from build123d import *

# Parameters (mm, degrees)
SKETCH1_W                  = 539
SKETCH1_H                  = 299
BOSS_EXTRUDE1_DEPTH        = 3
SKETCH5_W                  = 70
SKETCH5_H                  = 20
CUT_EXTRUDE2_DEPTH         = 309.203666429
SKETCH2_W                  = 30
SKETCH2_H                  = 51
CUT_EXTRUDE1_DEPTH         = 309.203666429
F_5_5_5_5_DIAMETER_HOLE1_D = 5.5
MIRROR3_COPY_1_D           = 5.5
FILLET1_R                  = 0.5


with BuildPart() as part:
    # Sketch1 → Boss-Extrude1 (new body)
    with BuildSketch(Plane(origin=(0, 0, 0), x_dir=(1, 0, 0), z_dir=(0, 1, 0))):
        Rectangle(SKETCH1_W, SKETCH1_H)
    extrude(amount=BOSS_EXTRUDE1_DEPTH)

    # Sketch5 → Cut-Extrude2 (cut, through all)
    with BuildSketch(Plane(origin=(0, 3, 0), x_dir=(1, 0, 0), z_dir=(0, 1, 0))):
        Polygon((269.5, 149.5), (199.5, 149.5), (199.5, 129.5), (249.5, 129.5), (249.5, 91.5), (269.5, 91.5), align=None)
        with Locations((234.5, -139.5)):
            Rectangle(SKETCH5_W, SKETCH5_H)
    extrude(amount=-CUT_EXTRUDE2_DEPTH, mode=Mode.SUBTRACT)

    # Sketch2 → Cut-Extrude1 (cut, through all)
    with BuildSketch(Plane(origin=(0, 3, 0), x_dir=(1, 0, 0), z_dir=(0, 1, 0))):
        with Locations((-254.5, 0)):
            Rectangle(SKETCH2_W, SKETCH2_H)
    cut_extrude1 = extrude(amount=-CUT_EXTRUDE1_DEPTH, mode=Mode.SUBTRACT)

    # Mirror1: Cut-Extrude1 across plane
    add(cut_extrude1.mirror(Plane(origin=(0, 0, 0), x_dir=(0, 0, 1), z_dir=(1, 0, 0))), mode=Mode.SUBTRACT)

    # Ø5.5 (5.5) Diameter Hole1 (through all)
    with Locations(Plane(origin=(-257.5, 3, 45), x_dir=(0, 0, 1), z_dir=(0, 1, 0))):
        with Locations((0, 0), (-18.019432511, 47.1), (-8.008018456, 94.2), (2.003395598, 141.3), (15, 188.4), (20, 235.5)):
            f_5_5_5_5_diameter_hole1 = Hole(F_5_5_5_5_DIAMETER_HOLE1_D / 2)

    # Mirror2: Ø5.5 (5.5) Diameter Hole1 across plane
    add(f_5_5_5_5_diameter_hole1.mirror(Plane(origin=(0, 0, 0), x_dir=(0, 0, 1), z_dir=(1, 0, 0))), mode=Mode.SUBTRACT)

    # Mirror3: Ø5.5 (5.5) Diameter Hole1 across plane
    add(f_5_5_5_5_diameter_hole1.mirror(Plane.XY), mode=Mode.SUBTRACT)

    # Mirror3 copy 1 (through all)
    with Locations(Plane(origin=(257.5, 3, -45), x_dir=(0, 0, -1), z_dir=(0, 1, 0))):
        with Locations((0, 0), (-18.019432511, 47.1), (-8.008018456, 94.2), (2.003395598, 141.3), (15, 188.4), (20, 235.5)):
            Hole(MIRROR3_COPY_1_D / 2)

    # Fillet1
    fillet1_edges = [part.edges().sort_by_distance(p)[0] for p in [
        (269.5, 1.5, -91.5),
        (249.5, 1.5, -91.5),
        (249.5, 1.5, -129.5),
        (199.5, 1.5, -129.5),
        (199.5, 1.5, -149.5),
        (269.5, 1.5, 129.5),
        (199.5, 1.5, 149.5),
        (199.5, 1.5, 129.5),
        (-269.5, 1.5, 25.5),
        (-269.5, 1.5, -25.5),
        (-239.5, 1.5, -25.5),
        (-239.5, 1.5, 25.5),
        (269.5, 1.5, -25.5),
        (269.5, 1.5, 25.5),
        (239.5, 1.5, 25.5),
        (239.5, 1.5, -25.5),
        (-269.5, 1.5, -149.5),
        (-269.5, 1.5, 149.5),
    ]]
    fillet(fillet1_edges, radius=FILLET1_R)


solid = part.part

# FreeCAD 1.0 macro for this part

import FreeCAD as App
import Part
import Sketcher

V = App.Vector
Q = App.Units.Quantity


def edges_at(feature, points):
    """Names of the edges that pass closest to the given points."""
    edges = feature.Shape.Edges
    near = lambda p: min(range(len(edges)), key=lambda i: edges[i].distToShape(Part.Vertex(*p))[0])
    return sorted({f"Edge{near(p) + 1}" for p in points})

doc = App.newDocument("Part")
params = doc.addObject("Spreadsheet::Sheet", "Params")
for row, (alias, value) in enumerate([
    ("sketch1_width", "539 mm"),
    ("sketch1_height", "299 mm"),
    ("pad1_length", "3 mm"),
    ("sketch2_width", "70 mm"),
    ("sketch2_width2", "50 mm"),
    ("sketch2_height", "38 mm"),
    ("sketch3_width", "30 mm"),
    ("sketch3_height", "51 mm"),
    ("sketch4_diameter", "5.5 mm"),
    ("hole_diameter", "5.5 mm"),
    ("sketch5_diameter", "5.5 mm"),
    ("hole2_diameter", "5.5 mm"),
    ("fillet_radius", "0.5 mm"),
], start=1):
    params.set(f"A{row}", alias)
    params.set(f"B{row}", "=" + value)
    params.setAlias(f"B{row}", alias)

body = doc.addObject("PartDesign::Body", "Body")

# Sketch on XZ plane
sketch1 = body.newObject("Sketcher::SketchObject", "Sketch")
sketch1.AttachmentSupport = (doc.getObject("XZ_Plane"), [""])
sketch1.MapMode = "FlatFace"
sketch1.addGeometry([
    Part.LineSegment(V(-270, -150, 0), V(-270, 150, 0)),
    Part.LineSegment(V(-270, 150, 0), V(270, 150, 0)),
    Part.LineSegment(V(270, 150, 0), V(270, -150, 0)),
    Part.LineSegment(V(270, -150, 0), V(-270, -150, 0)),
], False)
sketch1.addConstraint([
    Sketcher.Constraint("Coincident", 0, 2, 1, 1),
    Sketcher.Constraint("Coincident", 1, 2, 2, 1),
    Sketcher.Constraint("Coincident", 2, 2, 3, 1),
    Sketcher.Constraint("Coincident", 3, 2, 0, 1),
    Sketcher.Constraint("Vertical", 0),
    Sketcher.Constraint("Horizontal", 1),
    Sketcher.Constraint("Vertical", 2),
    Sketcher.Constraint("Horizontal", 3),
    Sketcher.Constraint("Symmetric", 0, 2, 2, 2, -1, 1),
    Sketcher.Constraint("DistanceX", 1, 1, 1, 2, Q("539 mm")),
    Sketcher.Constraint("DistanceY", 0, 1, 0, 2, Q("299 mm")),
])
sketch1.setExpression("Constraints[9]", "Params.sketch1_width")
sketch1.setExpression("Constraints[10]", "Params.sketch1_height")
pad1 = body.newObject("PartDesign::Pad", "Pad")
pad1.Profile = sketch1
pad1.setExpression("Length", "Params.pad1_length")
pad1.Reversed = True

# Sketch on XZ plane
sketch2 = body.newObject("Sketcher::SketchObject", "Sketch001")
sketch2.AttachmentSupport = (doc.getObject("XZ_Plane"), [""])
sketch2.MapMode = "FlatFace"
sketch2.AttachmentOffset = App.Placement(V(0, 0, -3), App.Rotation())
sketch2.addGeometry([
    Part.LineSegment(V(270, -150, 0), V(200, -150, 0)),  # 0
    Part.LineSegment(V(200, -150, 0), V(200, -130, 0)),  # 1
    Part.LineSegment(V(200, -130, 0), V(250, -130, 0)),  # 2
    Part.LineSegment(V(250, -130, 0), V(250, -92, 0)),  # 3
    Part.LineSegment(V(250, -92, 0), V(270, -92, 0)),  # 4
    Part.LineSegment(V(270, -92, 0), V(270, -150, 0)),  # 5
    Part.LineSegment(V(200, 130, 0), V(200, 150, 0)),  # 6
    Part.LineSegment(V(200, 150, 0), V(270, 150, 0)),  # 7
    Part.LineSegment(V(270, 150, 0), V(270, 130, 0)),  # 8
    Part.LineSegment(V(270, 130, 0), V(200, 130, 0)),  # 9
], False)
sketch2.addConstraint([
    Sketcher.Constraint("Coincident", 0, 2, 1, 1),
    Sketcher.Constraint("Coincident", 1, 2, 2, 1),
    Sketcher.Constraint("Coincident", 2, 2, 3, 1),
    Sketcher.Constraint("Coincident", 3, 2, 4, 1),
    Sketcher.Constraint("Coincident", 4, 2, 5, 1),
    Sketcher.Constraint("Coincident", 5, 2, 0, 1),
    Sketcher.Constraint("Coincident", 6, 2, 7, 1),
    Sketcher.Constraint("Coincident", 7, 2, 8, 1),
    Sketcher.Constraint("Coincident", 8, 2, 9, 1),
    Sketcher.Constraint("Coincident", 9, 2, 6, 1),
    Sketcher.Constraint("Horizontal", 0),
    Sketcher.Constraint("Vertical", 1),
    Sketcher.Constraint("Horizontal", 2),
    Sketcher.Constraint("Vertical", 3),
    Sketcher.Constraint("Horizontal", 4),
    Sketcher.Constraint("Vertical", 5),
    Sketcher.Constraint("Vertical", 6),
    Sketcher.Constraint("Horizontal", 7),
    Sketcher.Constraint("Vertical", 8),
    Sketcher.Constraint("Horizontal", 9),
    Sketcher.Constraint("Symmetric", 0, 2, 6, 2, -1),
    Sketcher.Constraint("Vertical", 5, 2, 7, 2),
    Sketcher.Constraint("Equal", 4, 1),
    Sketcher.Constraint("Equal", 1, 6),
    Sketcher.Constraint("DistanceX", 0, 2, 0, 1, Q("70 mm")),
    Sketcher.Constraint("DistanceX", 2, 1, 2, 2, Q("50 mm")),
    Sketcher.Constraint("DistanceY", 3, 1, 3, 2, Q("38 mm")),
    Sketcher.Constraint("DistanceY", 3, 2, 6, 2, Q("241 mm")),
    Sketcher.Constraint("DistanceX", -1, 1, 0, 2, Q("199.5 mm")),
])
sketch2.setExpression("Constraints[24]", "Params.sketch2_width")
sketch2.setExpression("Constraints[25]", "Params.sketch2_width2")
sketch2.setExpression("Constraints[26]", "Params.sketch2_height")
pocket1 = body.newObject("PartDesign::Pocket", "Pocket")
pocket1.Profile = sketch2
pocket1.Type = "ThroughAll"
pocket1.Reversed = True

# Sketch on XZ plane
sketch3 = body.newObject("Sketcher::SketchObject", "Sketch002")
sketch3.AttachmentSupport = (doc.getObject("XZ_Plane"), [""])
sketch3.MapMode = "FlatFace"
sketch3.AttachmentOffset = App.Placement(V(0, 0, -3), App.Rotation())
sketch3.addGeometry([
    Part.LineSegment(V(-270, -26, 0), V(-270, 26, 0)),
    Part.LineSegment(V(-270, 26, 0), V(-240, 26, 0)),
    Part.LineSegment(V(-240, 26, 0), V(-240, -26, 0)),
    Part.LineSegment(V(-240, -26, 0), V(-270, -26, 0)),
], False)
sketch3.addConstraint([
    Sketcher.Constraint("Coincident", 0, 2, 1, 1),
    Sketcher.Constraint("Coincident", 1, 2, 2, 1),
    Sketcher.Constraint("Coincident", 2, 2, 3, 1),
    Sketcher.Constraint("Coincident", 3, 2, 0, 1),
    Sketcher.Constraint("Vertical", 0),
    Sketcher.Constraint("Horizontal", 1),
    Sketcher.Constraint("Vertical", 2),
    Sketcher.Constraint("Horizontal", 3),
    Sketcher.Constraint("DistanceX", 1, 1, 1, 2, Q("30 mm")),
    Sketcher.Constraint("DistanceY", 0, 1, 0, 2, Q("51 mm")),
    Sketcher.Constraint("DistanceX", 0, 2, -1, 1, Q("269.5 mm")),
    Sketcher.Constraint("DistanceY", -1, 1, 0, 2, Q("25.5 mm")),
])
sketch3.setExpression("Constraints[8]", "Params.sketch3_width")
sketch3.setExpression("Constraints[9]", "Params.sketch3_height")
pocket2 = body.newObject("PartDesign::Pocket", "Pocket001")
pocket2.Profile = sketch3
pocket2.Type = "ThroughAll"
pocket2.Reversed = True
doc.recompute()

mirrored = body.newObject("PartDesign::Mirrored", "Mirrored")
mirrored.Originals = [pocket2]
mirrored.MirrorPlane = (doc.getObject("YZ_Plane"), [""])
body.Tip = mirrored

# Sketch on XZ plane
sketch4 = body.newObject("Sketcher::SketchObject", "Sketch003")
sketch4.AttachmentSupport = (doc.getObject("XZ_Plane"), [""])
sketch4.MapMode = "FlatFace"
sketch4.AttachmentOffset = App.Placement(V(0, 0, -3), App.Rotation())
sketch4.addGeometry([
    Part.Circle(V(-257.5, 45, 0), V(0, 0, 1), 2.8),  # 0
    Part.Circle(V(-210.4, 27, 0), V(0, 0, 1), 2.8),  # 1
    Part.Circle(V(-163.3, 37, 0), V(0, 0, 1), 2.8),  # 2
    Part.Circle(V(-116.2, 47, 0), V(0, 0, 1), 2.8),  # 3
    Part.Circle(V(-69.1, 60, 0), V(0, 0, 1), 2.8),  # 4
    Part.Circle(V(-22, 65, 0), V(0, 0, 1), 2.8),  # 5
], False)
sketch4.addConstraint([
    Sketcher.Constraint("Equal", 0, 1),
    Sketcher.Constraint("Equal", 1, 2),
    Sketcher.Constraint("Equal", 2, 3),
    Sketcher.Constraint("Equal", 3, 4),
    Sketcher.Constraint("Equal", 4, 5),
    Sketcher.Constraint("Diameter", 0, Q("5.5 mm")),
    Sketcher.Constraint("DistanceY", -1, 1, 0, 3, Q("45 mm")),
    Sketcher.Constraint("DistanceY", -1, 1, 4, 3, Q("60 mm")),
    Sketcher.Constraint("DistanceX", 5, 3, -1, 1, Q("22 mm")),
    Sketcher.Constraint("DistanceY", -1, 1, 5, 3, Q("65 mm")),
    Sketcher.Constraint("DistanceX", 0, 3, -1, 1, Q("257.5 mm")),
    Sketcher.Constraint("DistanceX", 1, 3, -1, 1, Q("210.4 mm")),
    Sketcher.Constraint("DistanceX", 2, 3, -1, 1, Q("163.3 mm")),
    Sketcher.Constraint("DistanceX", 3, 3, -1, 1, Q("116.2 mm")),
    Sketcher.Constraint("DistanceX", 4, 3, -1, 1, Q("69.1 mm")),
    Sketcher.Constraint("DistanceY", -1, 1, 2, 3, Q("36.991982 mm")),
    Sketcher.Constraint("DistanceY", 1, 3, 3, 3, Q("20.022828 mm")),
    Sketcher.Constraint("DistanceY", -1, 1, 1, 3, Q("26.980567 mm")),
])
sketch4.setExpression("Constraints[5]", "Params.sketch4_diameter")
doc.recompute()
hole = body.newObject("PartDesign::Hole", "Hole")
hole.Profile = sketch4
hole.ThreadType = "None"
hole.setExpression("Diameter", "Params.hole_diameter")
hole.DepthType = "ThroughAll"
hole.Reversed = True
doc.recompute()

mirrored2 = body.newObject("PartDesign::Mirrored", "Mirrored001")
mirrored2.Originals = [hole]
mirrored2.MirrorPlane = (doc.getObject("YZ_Plane"), [""])
body.Tip = mirrored2
doc.recompute()

mirrored3 = body.newObject("PartDesign::Mirrored", "Mirrored002")
mirrored3.Originals = [hole]
mirrored3.MirrorPlane = (doc.getObject("XY_Plane"), [""])
body.Tip = mirrored3

# Sketch on XZ plane
sketch5 = body.newObject("Sketcher::SketchObject", "Sketch004")
sketch5.AttachmentSupport = (doc.getObject("XZ_Plane"), [""])
sketch5.MapMode = "FlatFace"
sketch5.AttachmentOffset = App.Placement(V(0, 0, -3), App.Rotation())
sketch5.addGeometry([
    Part.Circle(V(257.5, -45, 0), V(0, 0, 1), 2.8),  # 0
    Part.Circle(V(210.4, -27, 0), V(0, 0, 1), 2.8),  # 1
    Part.Circle(V(163.3, -37, 0), V(0, 0, 1), 2.8),  # 2
    Part.Circle(V(116.2, -47, 0), V(0, 0, 1), 2.8),  # 3
    Part.Circle(V(69.1, -60, 0), V(0, 0, 1), 2.8),  # 4
    Part.Circle(V(22, -65, 0), V(0, 0, 1), 2.8),  # 5
], False)
sketch5.addConstraint([
    Sketcher.Constraint("Equal", 0, 1),
    Sketcher.Constraint("Equal", 1, 2),
    Sketcher.Constraint("Equal", 2, 3),
    Sketcher.Constraint("Equal", 3, 4),
    Sketcher.Constraint("Equal", 4, 5),
    Sketcher.Constraint("Diameter", 0, Q("5.5 mm")),
    Sketcher.Constraint("DistanceY", 0, 3, -1, 1, Q("45 mm")),
    Sketcher.Constraint("DistanceY", 4, 3, -1, 1, Q("60 mm")),
    Sketcher.Constraint("DistanceX", -1, 1, 5, 3, Q("22 mm")),
    Sketcher.Constraint("DistanceY", 5, 3, -1, 1, Q("65 mm")),
    Sketcher.Constraint("DistanceX", -1, 1, 0, 3, Q("257.5 mm")),
    Sketcher.Constraint("DistanceX", -1, 1, 1, 3, Q("210.4 mm")),
    Sketcher.Constraint("DistanceX", -1, 1, 2, 3, Q("163.3 mm")),
    Sketcher.Constraint("DistanceX", -1, 1, 3, 3, Q("116.2 mm")),
    Sketcher.Constraint("DistanceX", -1, 1, 4, 3, Q("69.1 mm")),
    Sketcher.Constraint("DistanceY", 2, 3, -1, 1, Q("36.991982 mm")),
    Sketcher.Constraint("DistanceY", 3, 3, 1, 3, Q("20.022828 mm")),
    Sketcher.Constraint("DistanceY", 1, 3, -1, 1, Q("26.980567 mm")),
])
sketch5.setExpression("Constraints[5]", "Params.sketch5_diameter")
doc.recompute()
hole2 = body.newObject("PartDesign::Hole", "Hole001")
hole2.Profile = sketch5
hole2.ThreadType = "None"
hole2.setExpression("Diameter", "Params.hole2_diameter")
hole2.DepthType = "ThroughAll"
hole2.Reversed = True
doc.recompute()

fillet = body.newObject("PartDesign::Fillet", "Fillet")
fillet.Base = (hole2, edges_at(hole2, [
    (269.5, 1.5, -91.5),
    (249.5, 1.5, -91.5),
    (249.5, 1.5, -129.5),
    (199.5, 1.5, -129.5),
    (199.5, 1.5, -149.5),
    (269.5, 1.5, 129.5),
    (199.5, 1.5, 149.5),
    (199.5, 1.5, 129.5),
    (-269.5, 1.5, 25.5),
    (-269.5, 1.5, -25.5),
    (-239.5, 1.5, -25.5),
    (-239.5, 1.5, 25.5),
    (269.5, 1.5, -25.5),
    (269.5, 1.5, 25.5),
    (239.5, 1.5, 25.5),
    (239.5, 1.5, -25.5),
    (-269.5, 1.5, -149.5),
    (-269.5, 1.5, 149.5),
]))
fillet.setExpression("Radius", "Params.fillet_radius")

doc.recompute()
